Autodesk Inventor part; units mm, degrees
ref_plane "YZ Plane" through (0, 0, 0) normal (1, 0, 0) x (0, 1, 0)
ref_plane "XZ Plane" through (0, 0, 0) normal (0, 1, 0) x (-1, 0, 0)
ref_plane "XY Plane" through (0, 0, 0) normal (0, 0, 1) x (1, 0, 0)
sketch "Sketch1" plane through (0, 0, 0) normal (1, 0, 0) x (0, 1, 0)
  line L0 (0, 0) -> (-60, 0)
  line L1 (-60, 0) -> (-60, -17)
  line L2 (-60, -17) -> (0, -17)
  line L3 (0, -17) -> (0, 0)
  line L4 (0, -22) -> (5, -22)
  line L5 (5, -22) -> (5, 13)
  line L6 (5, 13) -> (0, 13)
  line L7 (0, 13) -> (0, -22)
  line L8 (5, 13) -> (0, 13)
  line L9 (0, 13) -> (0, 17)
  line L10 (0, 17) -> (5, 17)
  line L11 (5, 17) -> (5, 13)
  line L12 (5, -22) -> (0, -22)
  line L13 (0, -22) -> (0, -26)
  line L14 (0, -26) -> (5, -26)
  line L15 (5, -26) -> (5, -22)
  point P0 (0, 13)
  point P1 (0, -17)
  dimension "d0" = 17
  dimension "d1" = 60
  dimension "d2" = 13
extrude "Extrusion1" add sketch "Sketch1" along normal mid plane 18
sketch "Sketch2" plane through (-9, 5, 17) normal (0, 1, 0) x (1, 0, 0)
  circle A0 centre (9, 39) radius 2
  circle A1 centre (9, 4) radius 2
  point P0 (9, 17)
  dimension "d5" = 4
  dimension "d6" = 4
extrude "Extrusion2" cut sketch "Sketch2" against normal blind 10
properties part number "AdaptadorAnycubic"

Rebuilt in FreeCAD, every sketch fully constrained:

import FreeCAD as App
import Part
import Sketcher
from FreeCAD import Vector
Q = App.Units.Quantity


def add_polygon(sketch, points):
    """Adds a closed chain of lines whose ends are joined by coincident constraints."""
    first, n = sketch.GeometryCount, len(points)
    for a, b in zip(points, points[1:] + points[:1]):
        sketch.addGeometry(Part.LineSegment(App.Vector(*a, 0), App.Vector(*b, 0)), False)
    for i in range(n):
        sketch.addConstraint(Sketcher.Constraint("Coincident", first + i, 2, first + (i + 1) % n, 1))

doc = App.newDocument("Part")
params = doc.addObject("Spreadsheet::Sheet", "Params")
for row, (alias, value) in enumerate([
    ("sketch1_width", "60 mm"),
    ("sketch1_height", "17 mm"),
    ("sketch1_width2", "5 mm"),
    ("sketch1_height2", "9 mm"),
    ("pad1_length", "18 mm"),
    ("sketch2_diameter", "4 mm"),
    ("pocket1_length", "10 mm"),
], start=1):
    params.set(f"A{row}", alias)
    params.set(f"B{row}", "=" + value)
    params.setAlias(f"B{row}", alias)

body = doc.addObject("PartDesign::Body", "Body")

# Sketch on YZ plane
sketch1 = body.newObject("Sketcher::SketchObject", "Sketch")
sketch1.AttachmentSupport = (doc.getObject("YZ_Plane"), [""])
sketch1.MapMode = "FlatFace"
add_polygon(sketch1, [(-60, -17), (0, -17), (0, -26), (5, -26), (5, 17), (0, 17), (0, 0), (-60, 0)])  # lines 0-7
sketch1.addConstraint(Sketcher.Constraint("Horizontal", 0))
sketch1.addConstraint(Sketcher.Constraint("Vertical", 1))
sketch1.addConstraint(Sketcher.Constraint("Horizontal", 2))
sketch1.addConstraint(Sketcher.Constraint("Vertical", 3))
sketch1.addConstraint(Sketcher.Constraint("Horizontal", 4))
sketch1.addConstraint(Sketcher.Constraint("Vertical", 5))
sketch1.addConstraint(Sketcher.Constraint("Horizontal", 6))
sketch1.addConstraint(Sketcher.Constraint("Vertical", 7))
sketch1.addConstraint(Sketcher.Constraint("Coincident", 5, 2, -1, 1))
sketch1.addConstraint(Sketcher.Constraint("Symmetric", 0, 2, 4, 2, -1, 1))
sketch1.addConstraint(Sketcher.Constraint("DistanceX", 0, 1, 0, 2, Q("60 mm")))
sketch1.addConstraint(Sketcher.Constraint("DistanceY", 5, 2, 5, 1, Q("17 mm")))
sketch1.addConstraint(Sketcher.Constraint("DistanceX", 2, 1, 2, 2, Q("5 mm")))
sketch1.addConstraint(Sketcher.Constraint("DistanceY", 1, 2, 1, 1, Q("9 mm")))
sketch1.setExpression("Constraints[18]", "Params.sketch1_width")
sketch1.setExpression("Constraints[19]", "Params.sketch1_height")
sketch1.setExpression("Constraints[20]", "Params.sketch1_width2")
sketch1.setExpression("Constraints[21]", "Params.sketch1_height2")
pad1 = body.newObject("PartDesign::Pad", "Pad")
pad1.Profile = sketch1
pad1.setExpression("Length", "Params.pad1_length")
pad1.Midplane = True

# Sketch on XZ plane
sketch2 = body.newObject("Sketcher::SketchObject", "Sketch001")
sketch2.AttachmentSupport = (doc.getObject("XZ_Plane"), [""])
sketch2.MapMode = "FlatFace"
sketch2.AttachmentOffset = App.Placement(Vector(0, 0, -5), App.Rotation())
sketch2.addGeometry(Part.Circle(Vector(0, -22, 0), Vector(0, 0, 1), 2), False)
sketch2.addGeometry(Part.Circle(Vector(0, 13, 0), Vector(0, 0, 1), 2), False)
sketch2.addConstraint(Sketcher.Constraint("Equal", 0, 1))
sketch2.addConstraint(Sketcher.Constraint("PointOnObject", 0, 3, -2))
sketch2.addConstraint(Sketcher.Constraint("PointOnObject", 1, 3, -2))
sketch2.addConstraint(Sketcher.Constraint("Diameter", 0, Q("4 mm")))
sketch2.addConstraint(Sketcher.Constraint("DistanceY", 0, 3, -1, 1, Q("22 mm")))
sketch2.addConstraint(Sketcher.Constraint("DistanceY", -1, 1, 1, 3, Q("13 mm")))
sketch2.setExpression("Constraints[3]", "Params.sketch2_diameter")
pocket1 = body.newObject("PartDesign::Pocket", "Pocket")
pocket1.Profile = sketch2
pocket1.setExpression("Length", "Params.pocket1_length")
pocket1.Reversed = True

doc.recompute()
